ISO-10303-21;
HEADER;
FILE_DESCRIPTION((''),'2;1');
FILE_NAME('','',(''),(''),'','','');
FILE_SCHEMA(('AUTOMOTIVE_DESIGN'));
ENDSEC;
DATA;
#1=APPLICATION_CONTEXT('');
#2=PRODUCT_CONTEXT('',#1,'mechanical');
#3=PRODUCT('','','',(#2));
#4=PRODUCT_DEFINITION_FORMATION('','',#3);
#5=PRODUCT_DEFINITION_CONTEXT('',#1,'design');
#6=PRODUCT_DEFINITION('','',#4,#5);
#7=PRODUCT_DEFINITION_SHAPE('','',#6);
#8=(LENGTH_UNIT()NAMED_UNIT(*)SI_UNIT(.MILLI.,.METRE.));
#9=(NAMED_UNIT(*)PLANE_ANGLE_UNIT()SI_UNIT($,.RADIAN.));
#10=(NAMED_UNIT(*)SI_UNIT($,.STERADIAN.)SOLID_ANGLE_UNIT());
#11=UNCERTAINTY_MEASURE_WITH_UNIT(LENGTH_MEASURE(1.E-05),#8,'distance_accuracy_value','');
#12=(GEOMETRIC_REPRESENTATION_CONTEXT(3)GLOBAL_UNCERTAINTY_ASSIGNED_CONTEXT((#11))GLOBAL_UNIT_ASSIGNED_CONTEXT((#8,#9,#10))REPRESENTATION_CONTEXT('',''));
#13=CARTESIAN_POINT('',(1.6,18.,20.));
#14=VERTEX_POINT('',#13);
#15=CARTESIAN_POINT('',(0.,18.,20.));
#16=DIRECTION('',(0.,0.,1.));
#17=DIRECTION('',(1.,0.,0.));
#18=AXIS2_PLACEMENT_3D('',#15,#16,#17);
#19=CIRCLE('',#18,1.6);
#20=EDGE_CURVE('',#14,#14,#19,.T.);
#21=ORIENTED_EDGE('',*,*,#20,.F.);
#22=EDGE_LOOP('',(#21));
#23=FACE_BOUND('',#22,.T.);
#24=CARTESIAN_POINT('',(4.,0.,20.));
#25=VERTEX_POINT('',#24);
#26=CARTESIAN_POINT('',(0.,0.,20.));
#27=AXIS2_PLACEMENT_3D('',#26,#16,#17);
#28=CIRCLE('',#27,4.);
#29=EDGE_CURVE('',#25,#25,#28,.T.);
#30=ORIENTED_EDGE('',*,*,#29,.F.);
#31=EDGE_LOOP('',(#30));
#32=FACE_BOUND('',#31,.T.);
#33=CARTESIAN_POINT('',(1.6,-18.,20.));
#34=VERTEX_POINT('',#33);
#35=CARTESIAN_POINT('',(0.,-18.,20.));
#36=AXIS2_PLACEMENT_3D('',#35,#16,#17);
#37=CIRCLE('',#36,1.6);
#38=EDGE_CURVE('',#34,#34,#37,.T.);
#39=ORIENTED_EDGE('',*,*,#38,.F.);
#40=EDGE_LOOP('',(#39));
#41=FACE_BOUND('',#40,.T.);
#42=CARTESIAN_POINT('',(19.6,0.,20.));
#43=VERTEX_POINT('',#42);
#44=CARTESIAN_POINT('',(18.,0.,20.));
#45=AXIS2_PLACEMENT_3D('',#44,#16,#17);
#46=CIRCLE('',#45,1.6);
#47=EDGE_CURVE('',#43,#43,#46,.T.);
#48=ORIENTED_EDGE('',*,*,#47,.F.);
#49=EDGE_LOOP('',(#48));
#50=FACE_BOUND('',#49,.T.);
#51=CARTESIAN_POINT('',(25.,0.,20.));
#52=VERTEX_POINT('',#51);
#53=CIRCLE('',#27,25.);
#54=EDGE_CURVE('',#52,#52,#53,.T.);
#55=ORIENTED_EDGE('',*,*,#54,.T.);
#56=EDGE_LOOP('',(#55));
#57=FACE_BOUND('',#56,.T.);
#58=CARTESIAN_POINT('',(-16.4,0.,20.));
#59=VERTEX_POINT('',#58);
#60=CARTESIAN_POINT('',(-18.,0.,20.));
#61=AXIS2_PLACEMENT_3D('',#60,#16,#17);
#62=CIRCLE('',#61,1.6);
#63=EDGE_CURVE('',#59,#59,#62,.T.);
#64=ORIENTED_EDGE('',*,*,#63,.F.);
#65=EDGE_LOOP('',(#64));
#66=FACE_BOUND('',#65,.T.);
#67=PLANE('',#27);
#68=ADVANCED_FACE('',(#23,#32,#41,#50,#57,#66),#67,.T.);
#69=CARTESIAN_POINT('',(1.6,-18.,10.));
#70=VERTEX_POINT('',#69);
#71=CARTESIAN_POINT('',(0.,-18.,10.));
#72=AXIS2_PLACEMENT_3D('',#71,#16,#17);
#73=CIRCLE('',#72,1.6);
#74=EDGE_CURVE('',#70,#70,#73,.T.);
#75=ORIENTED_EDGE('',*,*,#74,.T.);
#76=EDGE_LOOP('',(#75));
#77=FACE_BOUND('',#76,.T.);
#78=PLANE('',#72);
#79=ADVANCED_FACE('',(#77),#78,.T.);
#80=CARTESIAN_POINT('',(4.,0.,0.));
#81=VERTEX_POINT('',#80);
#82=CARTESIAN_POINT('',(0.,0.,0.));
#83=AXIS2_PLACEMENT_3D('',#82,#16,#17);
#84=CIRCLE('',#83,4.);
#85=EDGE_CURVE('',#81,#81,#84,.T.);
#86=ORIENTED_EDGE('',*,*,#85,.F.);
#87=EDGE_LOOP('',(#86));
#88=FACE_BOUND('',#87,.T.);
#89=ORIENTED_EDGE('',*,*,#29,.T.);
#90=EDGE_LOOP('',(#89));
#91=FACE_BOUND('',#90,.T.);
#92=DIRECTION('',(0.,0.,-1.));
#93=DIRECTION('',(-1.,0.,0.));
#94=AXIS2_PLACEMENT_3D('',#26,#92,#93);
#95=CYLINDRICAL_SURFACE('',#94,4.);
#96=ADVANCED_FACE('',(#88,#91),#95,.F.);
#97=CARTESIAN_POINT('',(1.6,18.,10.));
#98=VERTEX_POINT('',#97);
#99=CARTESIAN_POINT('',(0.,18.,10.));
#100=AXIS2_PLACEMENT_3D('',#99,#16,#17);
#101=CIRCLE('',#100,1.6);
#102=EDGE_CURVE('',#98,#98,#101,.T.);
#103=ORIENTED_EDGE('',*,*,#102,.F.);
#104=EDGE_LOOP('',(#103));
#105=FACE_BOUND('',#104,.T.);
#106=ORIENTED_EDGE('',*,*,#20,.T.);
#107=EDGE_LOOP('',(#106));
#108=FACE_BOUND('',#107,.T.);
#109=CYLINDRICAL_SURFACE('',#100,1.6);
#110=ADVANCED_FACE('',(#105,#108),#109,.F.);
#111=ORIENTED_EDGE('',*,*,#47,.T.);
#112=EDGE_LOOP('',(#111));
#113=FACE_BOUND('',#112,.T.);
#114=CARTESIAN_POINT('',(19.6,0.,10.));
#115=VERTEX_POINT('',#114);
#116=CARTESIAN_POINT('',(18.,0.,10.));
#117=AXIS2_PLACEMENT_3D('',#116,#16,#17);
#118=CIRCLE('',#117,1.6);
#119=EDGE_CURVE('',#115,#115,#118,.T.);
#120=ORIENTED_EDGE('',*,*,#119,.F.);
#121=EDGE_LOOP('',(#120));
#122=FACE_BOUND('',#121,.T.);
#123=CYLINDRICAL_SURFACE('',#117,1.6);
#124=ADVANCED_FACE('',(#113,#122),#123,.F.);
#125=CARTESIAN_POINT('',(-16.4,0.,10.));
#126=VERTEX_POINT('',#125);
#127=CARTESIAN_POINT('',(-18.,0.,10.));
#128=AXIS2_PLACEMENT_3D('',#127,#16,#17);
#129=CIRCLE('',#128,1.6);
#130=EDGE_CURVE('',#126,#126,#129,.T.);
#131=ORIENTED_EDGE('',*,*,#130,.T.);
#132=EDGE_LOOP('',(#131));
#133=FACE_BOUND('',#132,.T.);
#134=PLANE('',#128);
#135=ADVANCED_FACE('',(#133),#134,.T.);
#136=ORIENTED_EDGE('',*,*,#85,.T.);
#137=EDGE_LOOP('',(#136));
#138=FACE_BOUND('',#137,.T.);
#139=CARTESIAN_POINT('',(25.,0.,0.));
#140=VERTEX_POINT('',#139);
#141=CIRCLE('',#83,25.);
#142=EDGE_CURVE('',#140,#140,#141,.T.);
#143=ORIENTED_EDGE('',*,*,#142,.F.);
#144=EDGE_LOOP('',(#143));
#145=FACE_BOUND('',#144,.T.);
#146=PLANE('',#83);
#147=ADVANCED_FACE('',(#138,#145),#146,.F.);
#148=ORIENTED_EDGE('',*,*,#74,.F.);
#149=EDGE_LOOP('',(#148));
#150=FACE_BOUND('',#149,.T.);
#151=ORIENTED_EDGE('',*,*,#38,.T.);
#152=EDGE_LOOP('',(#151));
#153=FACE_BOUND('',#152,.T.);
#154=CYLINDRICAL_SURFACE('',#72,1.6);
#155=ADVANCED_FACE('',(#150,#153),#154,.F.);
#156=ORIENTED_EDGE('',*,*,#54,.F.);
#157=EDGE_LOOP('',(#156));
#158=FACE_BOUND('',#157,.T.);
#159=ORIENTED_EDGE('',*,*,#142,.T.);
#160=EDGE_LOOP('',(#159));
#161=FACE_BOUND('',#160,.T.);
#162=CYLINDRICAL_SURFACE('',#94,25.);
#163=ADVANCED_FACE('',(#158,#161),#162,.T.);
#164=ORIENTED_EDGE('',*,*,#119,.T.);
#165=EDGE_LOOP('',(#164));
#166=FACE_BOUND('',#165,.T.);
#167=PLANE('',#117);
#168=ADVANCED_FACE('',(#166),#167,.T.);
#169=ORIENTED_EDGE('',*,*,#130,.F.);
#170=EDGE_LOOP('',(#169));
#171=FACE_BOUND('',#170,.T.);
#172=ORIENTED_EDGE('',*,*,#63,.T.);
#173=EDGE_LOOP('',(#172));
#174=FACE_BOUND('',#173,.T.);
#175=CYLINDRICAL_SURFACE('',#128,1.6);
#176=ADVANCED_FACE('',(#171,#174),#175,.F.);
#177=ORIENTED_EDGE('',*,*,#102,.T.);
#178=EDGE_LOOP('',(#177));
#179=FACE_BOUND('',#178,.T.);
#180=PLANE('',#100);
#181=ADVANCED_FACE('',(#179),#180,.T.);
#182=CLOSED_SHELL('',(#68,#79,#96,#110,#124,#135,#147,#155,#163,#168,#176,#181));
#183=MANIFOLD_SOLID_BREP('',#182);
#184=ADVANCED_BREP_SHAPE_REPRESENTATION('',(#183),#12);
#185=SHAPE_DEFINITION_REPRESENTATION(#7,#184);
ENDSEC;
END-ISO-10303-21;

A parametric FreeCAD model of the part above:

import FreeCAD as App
import Part
import Sketcher
from FreeCAD import Vector

doc = App.newDocument("Part")
body = doc.addObject("PartDesign::Body", "Body")

# Sketch on XY plane
sketch1 = doc.addObject("Sketcher::SketchObject", "Sketch")
body.addObject(sketch1)
sketch1.AttachmentSupport = (doc.XY_Plane, [""])
sketch1.MapMode = "FlatFace"
sketch1.addGeometry([
    Part.Circle(Vector(0, 0, 0), Vector(0, 0, 1), 25),
    Part.Circle(Vector(0, 0, 0), Vector(0, 0, 1), 4),
], False)
sketch1.addConstraint([
    Sketcher.Constraint("Coincident", 0, 3, -1, 1),
    Sketcher.Constraint("Coincident", 1, 3, -1, 1),
    Sketcher.Constraint("Diameter", 0, 50.0),
    Sketcher.Constraint("Diameter", 1, 8.0),
])
pad1 = doc.addObject("PartDesign::Pad", "Pad")
body.addObject(pad1)
pad1.Profile = sketch1
pad1.Length = 20

# Sketch on XY plane
sketch2 = doc.addObject("Sketcher::SketchObject", "Sketch001")
body.addObject(sketch2)
sketch2.AttachmentSupport = (doc.XY_Plane, [""])
sketch2.MapMode = "FlatFace"
sketch2.AttachmentOffset = App.Placement(Vector(0, 0, 20), App.Rotation())
sketch2.addGeometry([
    Part.Circle(Vector(0, 18, 0), Vector(0, 0, 1), 1.6),
    Part.Circle(Vector(18, 0, 0), Vector(0, 0, 1), 1.6),
    Part.Circle(Vector(0, -18, 0), Vector(0, 0, 1), 1.6),
    Part.Circle(Vector(-18, 0, 0), Vector(0, 0, 1), 1.6),
], False)
sketch2.addConstraint([
    Sketcher.Constraint("Equal", 0, 1),
    Sketcher.Constraint("Equal", 1, 2),
    Sketcher.Constraint("Equal", 2, 3),
    Sketcher.Constraint("Symmetric", 0, 3, 2, 3, -1, 1),
    Sketcher.Constraint("Symmetric", 1, 3, 3, 3, -1, 1),
    Sketcher.Constraint("PointOnObject", 0, 3, -2),
    Sketcher.Constraint("PointOnObject", 1, 3, -1),
    Sketcher.Constraint("Diameter", 0, 3.2),
    Sketcher.Constraint("DistanceY", -1, 1, 0, 3, 18.0),
    Sketcher.Constraint("DistanceX", -1, 1, 1, 3, 18.0),
])
pocket1 = doc.addObject("PartDesign::Pocket", "Pocket")
body.addObject(pocket1)
pocket1.Profile = sketch2
pocket1.Length = 10

doc.recompute()
